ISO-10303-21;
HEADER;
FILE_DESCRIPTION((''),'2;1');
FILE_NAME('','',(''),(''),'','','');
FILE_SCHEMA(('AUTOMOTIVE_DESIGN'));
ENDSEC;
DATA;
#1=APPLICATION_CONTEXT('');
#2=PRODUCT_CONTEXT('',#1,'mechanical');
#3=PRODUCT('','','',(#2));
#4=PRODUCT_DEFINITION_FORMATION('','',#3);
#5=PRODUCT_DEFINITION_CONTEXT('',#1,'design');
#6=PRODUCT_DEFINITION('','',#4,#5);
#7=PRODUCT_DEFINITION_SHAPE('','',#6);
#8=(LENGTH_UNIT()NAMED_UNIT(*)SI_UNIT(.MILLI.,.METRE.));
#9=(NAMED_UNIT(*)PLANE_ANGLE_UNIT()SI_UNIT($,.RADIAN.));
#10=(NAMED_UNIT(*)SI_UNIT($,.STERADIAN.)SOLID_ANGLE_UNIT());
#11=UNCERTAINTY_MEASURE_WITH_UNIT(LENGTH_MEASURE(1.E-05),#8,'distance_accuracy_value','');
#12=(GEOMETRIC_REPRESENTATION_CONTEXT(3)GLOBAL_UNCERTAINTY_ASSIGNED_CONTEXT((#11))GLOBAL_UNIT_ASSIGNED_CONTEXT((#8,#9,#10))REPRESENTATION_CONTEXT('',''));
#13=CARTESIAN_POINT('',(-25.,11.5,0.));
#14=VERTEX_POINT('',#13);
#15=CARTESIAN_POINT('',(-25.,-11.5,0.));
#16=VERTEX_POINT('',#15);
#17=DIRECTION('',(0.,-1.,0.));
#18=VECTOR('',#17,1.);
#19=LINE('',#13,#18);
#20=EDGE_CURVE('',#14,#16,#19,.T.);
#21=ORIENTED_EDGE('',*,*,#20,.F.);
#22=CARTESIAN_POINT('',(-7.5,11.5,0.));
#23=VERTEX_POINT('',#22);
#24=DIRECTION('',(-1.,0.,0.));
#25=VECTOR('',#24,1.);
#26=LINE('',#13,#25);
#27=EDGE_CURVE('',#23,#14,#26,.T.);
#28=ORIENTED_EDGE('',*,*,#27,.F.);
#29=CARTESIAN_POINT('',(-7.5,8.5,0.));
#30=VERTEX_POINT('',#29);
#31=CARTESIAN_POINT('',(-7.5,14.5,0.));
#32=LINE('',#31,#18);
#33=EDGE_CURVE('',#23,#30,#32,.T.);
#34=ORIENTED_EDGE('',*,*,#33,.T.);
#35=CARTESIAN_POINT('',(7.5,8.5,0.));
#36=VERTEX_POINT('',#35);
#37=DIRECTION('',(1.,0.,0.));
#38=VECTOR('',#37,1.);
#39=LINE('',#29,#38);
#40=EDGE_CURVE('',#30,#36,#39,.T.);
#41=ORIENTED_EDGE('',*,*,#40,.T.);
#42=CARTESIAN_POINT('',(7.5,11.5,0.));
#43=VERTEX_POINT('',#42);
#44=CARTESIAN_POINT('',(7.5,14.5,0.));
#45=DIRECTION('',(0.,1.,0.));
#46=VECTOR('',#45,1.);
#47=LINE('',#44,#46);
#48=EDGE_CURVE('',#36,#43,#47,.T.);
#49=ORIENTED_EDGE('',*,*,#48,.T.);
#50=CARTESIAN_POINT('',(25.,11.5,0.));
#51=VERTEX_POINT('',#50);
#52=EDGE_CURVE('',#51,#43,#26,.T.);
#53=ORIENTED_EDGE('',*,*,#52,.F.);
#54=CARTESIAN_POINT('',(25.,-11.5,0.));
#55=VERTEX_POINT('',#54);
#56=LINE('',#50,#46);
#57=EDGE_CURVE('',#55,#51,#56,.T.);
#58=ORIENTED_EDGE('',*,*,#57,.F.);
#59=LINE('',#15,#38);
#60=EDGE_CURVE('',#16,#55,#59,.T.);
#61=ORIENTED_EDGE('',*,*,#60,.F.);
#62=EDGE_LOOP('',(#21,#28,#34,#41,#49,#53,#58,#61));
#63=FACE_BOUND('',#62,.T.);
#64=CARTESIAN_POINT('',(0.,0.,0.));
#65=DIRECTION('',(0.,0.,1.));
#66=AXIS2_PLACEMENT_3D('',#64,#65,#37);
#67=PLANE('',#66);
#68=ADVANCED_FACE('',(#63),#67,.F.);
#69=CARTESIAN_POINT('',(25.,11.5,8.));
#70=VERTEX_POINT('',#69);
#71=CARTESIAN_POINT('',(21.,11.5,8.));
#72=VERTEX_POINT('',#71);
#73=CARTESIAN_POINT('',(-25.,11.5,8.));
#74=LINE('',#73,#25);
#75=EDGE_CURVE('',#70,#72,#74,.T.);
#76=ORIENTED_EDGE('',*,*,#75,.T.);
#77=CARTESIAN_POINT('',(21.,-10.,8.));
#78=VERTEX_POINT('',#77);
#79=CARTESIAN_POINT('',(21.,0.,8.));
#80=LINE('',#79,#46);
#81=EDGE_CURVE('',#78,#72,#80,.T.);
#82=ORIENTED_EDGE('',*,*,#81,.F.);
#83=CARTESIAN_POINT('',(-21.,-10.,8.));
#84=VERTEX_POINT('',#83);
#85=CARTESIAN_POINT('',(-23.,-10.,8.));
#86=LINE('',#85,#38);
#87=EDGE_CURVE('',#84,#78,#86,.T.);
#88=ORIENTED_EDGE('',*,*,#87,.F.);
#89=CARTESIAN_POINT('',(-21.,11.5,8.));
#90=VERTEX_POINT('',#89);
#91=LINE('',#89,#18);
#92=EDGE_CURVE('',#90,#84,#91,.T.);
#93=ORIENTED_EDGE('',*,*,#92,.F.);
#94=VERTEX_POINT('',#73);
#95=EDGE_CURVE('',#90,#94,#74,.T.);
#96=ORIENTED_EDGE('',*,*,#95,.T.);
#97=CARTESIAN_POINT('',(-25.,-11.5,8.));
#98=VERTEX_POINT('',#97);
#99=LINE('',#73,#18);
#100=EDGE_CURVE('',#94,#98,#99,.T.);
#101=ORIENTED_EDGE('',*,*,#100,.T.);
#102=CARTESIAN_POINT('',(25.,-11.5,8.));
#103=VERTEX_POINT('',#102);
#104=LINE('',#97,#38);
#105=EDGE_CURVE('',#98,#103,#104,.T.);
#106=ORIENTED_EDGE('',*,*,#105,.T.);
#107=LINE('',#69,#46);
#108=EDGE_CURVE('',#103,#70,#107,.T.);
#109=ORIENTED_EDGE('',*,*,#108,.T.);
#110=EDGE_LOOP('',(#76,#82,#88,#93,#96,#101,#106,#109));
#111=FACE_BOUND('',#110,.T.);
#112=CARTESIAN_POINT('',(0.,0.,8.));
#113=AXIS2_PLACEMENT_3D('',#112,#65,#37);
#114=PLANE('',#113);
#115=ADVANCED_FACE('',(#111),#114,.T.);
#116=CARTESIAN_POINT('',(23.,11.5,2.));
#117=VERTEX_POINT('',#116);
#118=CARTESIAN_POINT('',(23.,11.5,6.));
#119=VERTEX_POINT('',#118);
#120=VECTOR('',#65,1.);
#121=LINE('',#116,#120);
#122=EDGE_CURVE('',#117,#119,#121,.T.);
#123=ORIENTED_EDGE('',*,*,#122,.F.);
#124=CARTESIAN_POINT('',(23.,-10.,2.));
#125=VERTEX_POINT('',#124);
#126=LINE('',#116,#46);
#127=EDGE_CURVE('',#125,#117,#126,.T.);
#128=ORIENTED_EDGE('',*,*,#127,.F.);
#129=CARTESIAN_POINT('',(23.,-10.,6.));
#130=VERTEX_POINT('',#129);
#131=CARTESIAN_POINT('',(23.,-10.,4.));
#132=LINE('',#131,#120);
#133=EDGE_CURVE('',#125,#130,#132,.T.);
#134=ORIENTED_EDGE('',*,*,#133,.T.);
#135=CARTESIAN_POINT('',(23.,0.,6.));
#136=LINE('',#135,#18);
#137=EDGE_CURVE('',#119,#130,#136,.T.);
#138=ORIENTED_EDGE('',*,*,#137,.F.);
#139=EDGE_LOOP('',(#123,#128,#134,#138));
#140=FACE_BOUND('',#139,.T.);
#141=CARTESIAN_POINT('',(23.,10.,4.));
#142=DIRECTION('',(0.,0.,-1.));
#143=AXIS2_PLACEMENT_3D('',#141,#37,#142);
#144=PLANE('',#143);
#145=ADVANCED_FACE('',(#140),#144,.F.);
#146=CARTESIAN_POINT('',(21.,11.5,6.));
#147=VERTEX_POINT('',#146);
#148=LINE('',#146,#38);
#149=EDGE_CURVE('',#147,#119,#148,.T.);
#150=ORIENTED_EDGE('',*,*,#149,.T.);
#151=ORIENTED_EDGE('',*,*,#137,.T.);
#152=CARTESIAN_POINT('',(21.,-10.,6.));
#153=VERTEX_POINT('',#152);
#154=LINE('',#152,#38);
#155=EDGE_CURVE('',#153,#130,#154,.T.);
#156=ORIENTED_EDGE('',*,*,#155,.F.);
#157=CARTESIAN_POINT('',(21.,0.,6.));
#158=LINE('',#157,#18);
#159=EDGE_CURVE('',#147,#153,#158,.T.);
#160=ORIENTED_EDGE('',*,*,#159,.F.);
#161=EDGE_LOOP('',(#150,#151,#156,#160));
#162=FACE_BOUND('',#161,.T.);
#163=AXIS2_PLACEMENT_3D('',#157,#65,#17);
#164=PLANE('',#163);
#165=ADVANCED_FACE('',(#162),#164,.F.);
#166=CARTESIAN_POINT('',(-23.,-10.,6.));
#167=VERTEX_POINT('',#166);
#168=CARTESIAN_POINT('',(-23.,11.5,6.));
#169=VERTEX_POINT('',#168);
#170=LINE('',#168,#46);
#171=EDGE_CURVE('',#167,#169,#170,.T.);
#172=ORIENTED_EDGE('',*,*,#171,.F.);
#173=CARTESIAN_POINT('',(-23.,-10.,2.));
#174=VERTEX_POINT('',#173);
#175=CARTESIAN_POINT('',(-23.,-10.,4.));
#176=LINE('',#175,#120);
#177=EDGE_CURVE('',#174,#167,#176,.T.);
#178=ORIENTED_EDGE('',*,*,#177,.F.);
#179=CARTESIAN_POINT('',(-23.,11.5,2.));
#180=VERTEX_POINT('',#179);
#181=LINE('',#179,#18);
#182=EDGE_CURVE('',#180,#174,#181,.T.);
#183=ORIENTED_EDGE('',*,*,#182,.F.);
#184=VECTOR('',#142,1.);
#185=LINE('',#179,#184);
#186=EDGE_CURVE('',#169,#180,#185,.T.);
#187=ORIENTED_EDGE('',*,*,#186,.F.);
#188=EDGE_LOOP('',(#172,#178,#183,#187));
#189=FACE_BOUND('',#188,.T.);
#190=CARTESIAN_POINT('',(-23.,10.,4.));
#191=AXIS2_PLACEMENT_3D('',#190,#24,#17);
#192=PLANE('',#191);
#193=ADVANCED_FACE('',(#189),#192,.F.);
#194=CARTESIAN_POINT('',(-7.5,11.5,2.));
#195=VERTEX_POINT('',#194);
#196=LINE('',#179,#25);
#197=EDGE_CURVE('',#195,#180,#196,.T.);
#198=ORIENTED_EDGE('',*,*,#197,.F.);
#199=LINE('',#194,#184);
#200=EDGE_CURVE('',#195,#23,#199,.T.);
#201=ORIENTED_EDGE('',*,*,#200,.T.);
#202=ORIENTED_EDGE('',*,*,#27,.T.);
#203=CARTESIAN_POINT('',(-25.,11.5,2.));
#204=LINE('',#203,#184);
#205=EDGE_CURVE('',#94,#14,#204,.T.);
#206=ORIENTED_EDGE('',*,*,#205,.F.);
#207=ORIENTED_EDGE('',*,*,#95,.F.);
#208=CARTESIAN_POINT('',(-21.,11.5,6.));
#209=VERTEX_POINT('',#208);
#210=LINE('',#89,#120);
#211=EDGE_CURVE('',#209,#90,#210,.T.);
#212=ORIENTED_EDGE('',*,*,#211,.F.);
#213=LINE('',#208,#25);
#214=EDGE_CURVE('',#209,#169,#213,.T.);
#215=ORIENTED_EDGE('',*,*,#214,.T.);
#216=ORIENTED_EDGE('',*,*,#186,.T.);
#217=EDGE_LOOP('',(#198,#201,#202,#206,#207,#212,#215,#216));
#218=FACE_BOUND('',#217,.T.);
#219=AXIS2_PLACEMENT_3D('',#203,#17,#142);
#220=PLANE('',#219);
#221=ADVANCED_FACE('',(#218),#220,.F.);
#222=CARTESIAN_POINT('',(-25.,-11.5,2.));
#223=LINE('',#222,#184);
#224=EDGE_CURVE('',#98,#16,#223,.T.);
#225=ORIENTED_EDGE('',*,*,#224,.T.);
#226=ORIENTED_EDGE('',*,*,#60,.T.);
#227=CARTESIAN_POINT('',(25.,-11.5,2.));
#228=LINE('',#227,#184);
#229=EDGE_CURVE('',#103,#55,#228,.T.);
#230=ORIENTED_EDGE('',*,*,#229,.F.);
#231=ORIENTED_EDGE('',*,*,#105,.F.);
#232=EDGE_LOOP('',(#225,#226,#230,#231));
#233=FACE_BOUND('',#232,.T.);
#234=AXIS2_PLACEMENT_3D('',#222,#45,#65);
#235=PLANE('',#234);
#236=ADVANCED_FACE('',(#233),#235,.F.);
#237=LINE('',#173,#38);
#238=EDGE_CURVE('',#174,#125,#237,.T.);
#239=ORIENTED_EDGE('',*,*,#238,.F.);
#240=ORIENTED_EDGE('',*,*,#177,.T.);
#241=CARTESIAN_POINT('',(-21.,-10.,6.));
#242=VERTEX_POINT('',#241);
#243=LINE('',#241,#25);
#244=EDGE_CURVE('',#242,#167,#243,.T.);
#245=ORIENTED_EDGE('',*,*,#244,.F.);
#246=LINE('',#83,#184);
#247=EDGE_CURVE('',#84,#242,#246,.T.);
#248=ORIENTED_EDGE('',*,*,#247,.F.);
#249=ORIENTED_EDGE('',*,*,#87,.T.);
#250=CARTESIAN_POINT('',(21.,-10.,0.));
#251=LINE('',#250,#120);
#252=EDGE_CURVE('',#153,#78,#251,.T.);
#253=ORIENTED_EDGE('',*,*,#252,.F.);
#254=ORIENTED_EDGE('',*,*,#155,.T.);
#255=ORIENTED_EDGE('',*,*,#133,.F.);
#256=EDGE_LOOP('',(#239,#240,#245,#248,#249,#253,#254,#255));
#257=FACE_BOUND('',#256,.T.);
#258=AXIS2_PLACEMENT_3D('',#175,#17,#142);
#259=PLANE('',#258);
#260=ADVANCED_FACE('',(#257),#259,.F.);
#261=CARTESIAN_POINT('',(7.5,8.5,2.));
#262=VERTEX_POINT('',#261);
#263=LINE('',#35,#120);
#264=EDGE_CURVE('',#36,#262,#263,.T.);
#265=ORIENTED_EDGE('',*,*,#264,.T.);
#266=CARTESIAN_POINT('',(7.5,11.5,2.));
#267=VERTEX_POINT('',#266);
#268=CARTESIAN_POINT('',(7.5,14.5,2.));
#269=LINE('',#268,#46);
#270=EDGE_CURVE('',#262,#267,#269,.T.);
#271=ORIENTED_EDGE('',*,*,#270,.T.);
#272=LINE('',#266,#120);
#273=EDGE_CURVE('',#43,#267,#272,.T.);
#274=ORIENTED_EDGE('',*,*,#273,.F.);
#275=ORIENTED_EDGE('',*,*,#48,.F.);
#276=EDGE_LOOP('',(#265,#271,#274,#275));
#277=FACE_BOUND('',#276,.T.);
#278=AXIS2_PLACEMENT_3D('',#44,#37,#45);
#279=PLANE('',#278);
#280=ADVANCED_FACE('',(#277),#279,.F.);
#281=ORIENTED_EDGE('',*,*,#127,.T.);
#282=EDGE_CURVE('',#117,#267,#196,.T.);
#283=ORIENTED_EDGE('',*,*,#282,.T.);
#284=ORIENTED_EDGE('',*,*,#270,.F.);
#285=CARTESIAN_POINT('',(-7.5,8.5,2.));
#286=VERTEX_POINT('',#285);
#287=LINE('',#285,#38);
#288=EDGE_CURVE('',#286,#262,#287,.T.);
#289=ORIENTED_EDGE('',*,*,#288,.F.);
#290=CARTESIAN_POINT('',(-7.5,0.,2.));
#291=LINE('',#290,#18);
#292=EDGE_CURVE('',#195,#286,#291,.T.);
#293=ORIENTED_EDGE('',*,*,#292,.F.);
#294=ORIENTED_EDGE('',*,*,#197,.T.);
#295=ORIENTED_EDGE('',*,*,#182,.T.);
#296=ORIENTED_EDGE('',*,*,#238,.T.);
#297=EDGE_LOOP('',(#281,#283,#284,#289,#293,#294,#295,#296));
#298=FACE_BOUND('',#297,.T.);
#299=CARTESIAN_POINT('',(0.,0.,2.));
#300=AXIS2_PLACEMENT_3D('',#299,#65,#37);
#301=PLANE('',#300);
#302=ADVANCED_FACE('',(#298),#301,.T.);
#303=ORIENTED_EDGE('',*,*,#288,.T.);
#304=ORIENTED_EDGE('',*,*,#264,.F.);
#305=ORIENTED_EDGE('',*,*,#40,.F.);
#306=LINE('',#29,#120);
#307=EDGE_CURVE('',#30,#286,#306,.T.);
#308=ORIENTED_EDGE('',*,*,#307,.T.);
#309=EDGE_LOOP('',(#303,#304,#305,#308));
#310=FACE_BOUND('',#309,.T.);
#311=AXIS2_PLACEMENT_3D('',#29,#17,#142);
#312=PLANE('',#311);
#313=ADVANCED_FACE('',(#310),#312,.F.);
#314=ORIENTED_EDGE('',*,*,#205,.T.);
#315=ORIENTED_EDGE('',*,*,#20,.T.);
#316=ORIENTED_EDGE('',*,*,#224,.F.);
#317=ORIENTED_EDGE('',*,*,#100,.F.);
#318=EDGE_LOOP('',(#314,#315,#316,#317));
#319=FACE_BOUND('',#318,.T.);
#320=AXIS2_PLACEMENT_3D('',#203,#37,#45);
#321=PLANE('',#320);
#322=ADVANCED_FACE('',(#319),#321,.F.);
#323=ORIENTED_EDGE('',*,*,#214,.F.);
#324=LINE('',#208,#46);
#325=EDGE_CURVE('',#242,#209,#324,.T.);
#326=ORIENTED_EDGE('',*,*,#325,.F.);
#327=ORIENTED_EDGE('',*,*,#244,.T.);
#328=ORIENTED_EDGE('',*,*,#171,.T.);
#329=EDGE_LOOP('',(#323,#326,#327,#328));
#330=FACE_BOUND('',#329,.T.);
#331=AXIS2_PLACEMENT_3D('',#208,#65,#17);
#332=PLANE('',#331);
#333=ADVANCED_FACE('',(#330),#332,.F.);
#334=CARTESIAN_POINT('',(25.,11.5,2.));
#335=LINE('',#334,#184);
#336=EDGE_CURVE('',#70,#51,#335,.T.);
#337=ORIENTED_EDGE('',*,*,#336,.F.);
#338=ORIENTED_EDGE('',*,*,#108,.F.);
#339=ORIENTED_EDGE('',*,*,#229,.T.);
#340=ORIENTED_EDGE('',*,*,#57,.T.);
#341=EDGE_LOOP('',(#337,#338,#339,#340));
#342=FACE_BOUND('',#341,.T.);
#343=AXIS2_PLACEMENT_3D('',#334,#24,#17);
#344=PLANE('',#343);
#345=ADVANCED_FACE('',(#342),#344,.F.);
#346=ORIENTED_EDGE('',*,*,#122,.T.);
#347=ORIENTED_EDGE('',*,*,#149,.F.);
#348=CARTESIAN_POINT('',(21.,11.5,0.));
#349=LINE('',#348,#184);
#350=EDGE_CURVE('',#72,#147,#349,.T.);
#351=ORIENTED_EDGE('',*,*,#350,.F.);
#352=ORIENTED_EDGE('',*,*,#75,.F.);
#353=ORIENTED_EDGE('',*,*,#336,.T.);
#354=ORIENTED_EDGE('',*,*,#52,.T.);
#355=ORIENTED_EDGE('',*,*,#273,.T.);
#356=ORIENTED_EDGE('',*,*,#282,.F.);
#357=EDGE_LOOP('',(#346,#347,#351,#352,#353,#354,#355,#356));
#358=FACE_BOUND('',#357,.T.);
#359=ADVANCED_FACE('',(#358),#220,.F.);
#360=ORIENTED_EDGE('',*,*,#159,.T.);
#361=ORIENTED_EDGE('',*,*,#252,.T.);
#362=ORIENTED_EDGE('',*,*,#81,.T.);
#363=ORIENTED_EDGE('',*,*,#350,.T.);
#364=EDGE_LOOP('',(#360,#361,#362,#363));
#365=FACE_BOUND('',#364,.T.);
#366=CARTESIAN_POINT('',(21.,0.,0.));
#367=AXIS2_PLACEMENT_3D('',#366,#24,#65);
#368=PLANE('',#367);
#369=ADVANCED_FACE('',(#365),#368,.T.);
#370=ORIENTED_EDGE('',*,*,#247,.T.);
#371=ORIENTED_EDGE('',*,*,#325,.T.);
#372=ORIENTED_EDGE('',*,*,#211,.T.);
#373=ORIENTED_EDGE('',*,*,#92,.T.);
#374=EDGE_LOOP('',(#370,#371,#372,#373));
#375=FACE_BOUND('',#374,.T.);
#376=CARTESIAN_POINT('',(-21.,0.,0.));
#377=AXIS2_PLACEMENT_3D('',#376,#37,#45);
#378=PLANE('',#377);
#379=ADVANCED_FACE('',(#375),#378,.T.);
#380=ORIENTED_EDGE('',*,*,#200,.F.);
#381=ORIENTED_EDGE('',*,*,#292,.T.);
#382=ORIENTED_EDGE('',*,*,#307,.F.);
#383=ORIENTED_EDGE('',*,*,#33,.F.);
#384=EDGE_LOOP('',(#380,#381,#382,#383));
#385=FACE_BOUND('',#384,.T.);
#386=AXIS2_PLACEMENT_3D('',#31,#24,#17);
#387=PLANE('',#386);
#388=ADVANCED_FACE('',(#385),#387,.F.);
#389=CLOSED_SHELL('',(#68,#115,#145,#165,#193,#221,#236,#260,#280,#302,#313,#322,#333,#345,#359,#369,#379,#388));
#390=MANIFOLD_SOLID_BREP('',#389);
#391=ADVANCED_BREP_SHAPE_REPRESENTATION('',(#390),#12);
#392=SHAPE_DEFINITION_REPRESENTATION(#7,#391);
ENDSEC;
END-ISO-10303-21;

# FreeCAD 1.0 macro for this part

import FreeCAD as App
import Part
import Sketcher


def add_polygon(sketch, points):
    """Adds a closed chain of lines whose ends are joined by coincident constraints."""
    first, n = sketch.GeometryCount, len(points)
    for a, b in zip(points, points[1:] + points[:1]):
        sketch.addGeometry(Part.LineSegment(App.Vector(*a, 0), App.Vector(*b, 0)), False)
    for i in range(n):
        sketch.addConstraint(Sketcher.Constraint("Coincident", first + i, 2, first + (i + 1) % n, 1))

doc = App.newDocument("Part")
body = doc.addObject("PartDesign::Body", "Body")

sketch1 = body.newObject("Sketcher::SketchObject", "Sketch")
sketch1.AttachmentSupport = (doc.getObject("XY_Plane"), [""])
sketch1.MapMode = "FlatFace"
add_polygon(sketch1, [(-25, 11.5), (-25, -11.5), (25, -11.5), (25, 11.5)])
sketch1.addConstraint(Sketcher.Constraint("Vertical", 0))
sketch1.addConstraint(Sketcher.Constraint("Horizontal", 1))
sketch1.addConstraint(Sketcher.Constraint("Vertical", 2))
sketch1.addConstraint(Sketcher.Constraint("Horizontal", 3))
sketch1.addConstraint(Sketcher.Constraint("Symmetric", 0, 2, 2, 2, -1, 1))
sketch1.addConstraint(Sketcher.Constraint("DistanceX", 1, 1, 1, 2, 50.0))
sketch1.addConstraint(Sketcher.Constraint("DistanceY", 0, 2, 0, 1, 23.0))
pad1 = body.newObject("PartDesign::Pad", "Pad")
pad1.Profile = sketch1
pad1.Length = 2

sketch2 = body.newObject("Sketcher::SketchObject", "Sketch001")
sketch2.AttachmentSupport = (doc.getObject("XY_Plane"), [""])
sketch2.MapMode = "FlatFace"
sketch2.AttachmentOffset = App.Placement(App.Vector(0, 0, 2), App.Rotation())
add_polygon(sketch2, [(-25, 11.5), (-25, -11.5), (25, -11.5), (25, 11.5)])
sketch2.addConstraint(Sketcher.Constraint("Vertical", 0))
sketch2.addConstraint(Sketcher.Constraint("Horizontal", 1))
sketch2.addConstraint(Sketcher.Constraint("Vertical", 2))
sketch2.addConstraint(Sketcher.Constraint("Horizontal", 3))
sketch2.addConstraint(Sketcher.Constraint("Symmetric", 0, 2, 2, 2, -1, 1))
sketch2.addConstraint(Sketcher.Constraint("DistanceX", 1, 1, 1, 2, 50.0))
sketch2.addConstraint(Sketcher.Constraint("DistanceY", 0, 2, 0, 1, 23.0))
pad2 = body.newObject("PartDesign::Pad", "Pad001")
pad2.Profile = sketch2
pad2.Length = 6

sketch3 = body.newObject("Sketcher::SketchObject", "Sketch002")
sketch3.AttachmentSupport = (doc.getObject("XY_Plane"), [""])
sketch3.MapMode = "FlatFace"
sketch3.AttachmentOffset = App.Placement(App.Vector(0, 0, 8), App.Rotation())
add_polygon(sketch3, [(-23, 10), (-23, -10), (23, -10), (23, 10)])
sketch3.addConstraint(Sketcher.Constraint("Vertical", 0))
sketch3.addConstraint(Sketcher.Constraint("Horizontal", 1))
sketch3.addConstraint(Sketcher.Constraint("Vertical", 2))
sketch3.addConstraint(Sketcher.Constraint("Horizontal", 3))
sketch3.addConstraint(Sketcher.Constraint("Symmetric", 0, 2, 2, 2, -1, 1))
sketch3.addConstraint(Sketcher.Constraint("DistanceX", 1, 1, 1, 2, 46.0))
sketch3.addConstraint(Sketcher.Constraint("DistanceY", 0, 2, 0, 1, 20.0))
pocket1 = body.newObject("PartDesign::Pocket", "Pocket")
pocket1.Profile = sketch3
pocket1.Length = 4

sketch4 = body.newObject("Sketcher::SketchObject", "Sketch003")
sketch4.AttachmentSupport = (doc.getObject("XZ_Plane"), [""])
sketch4.MapMode = "FlatFace"
sketch4.AttachmentOffset = App.Placement(App.Vector(0, 0, -10), App.Rotation())
add_polygon(sketch4, [(-23, 8), (-23, 4), (23, 4), (23, 8)])
sketch4.addConstraint(Sketcher.Constraint("Vertical", 0))
sketch4.addConstraint(Sketcher.Constraint("Horizontal", 1))
sketch4.addConstraint(Sketcher.Constraint("Vertical", 2))
sketch4.addConstraint(Sketcher.Constraint("Horizontal", 3))
sketch4.addConstraint(Sketcher.Constraint("DistanceX", 1, 1, 1, 2, 46.0))
sketch4.addConstraint(Sketcher.Constraint("DistanceY", 0, 2, 0, 1, 4.0))
sketch4.addConstraint(Sketcher.Constraint("DistanceX", 0, 2, -1, 1, 23.0))
sketch4.addConstraint(Sketcher.Constraint("DistanceY", -1, 1, 0, 2, 4.0))
pocket2 = body.newObject("PartDesign::Pocket", "Pocket001")
pocket2.Profile = sketch4
pocket2.Length = 4

sketch5 = body.newObject("Sketcher::SketchObject", "Sketch004")
sketch5.AttachmentSupport = (doc.getObject("XY_Plane"), [""])
sketch5.MapMode = "FlatFace"
sketch5.AttachmentOffset = App.Placement(App.Vector(0, 0, 4), App.Rotation())
add_polygon(sketch5, [(-23, 11.5), (-23, -10), (23, -10), (23, 11.5)])
sketch5.addConstraint(Sketcher.Constraint("Vertical", 0))
sketch5.addConstraint(Sketcher.Constraint("Horizontal", 1))
sketch5.addConstraint(Sketcher.Constraint("Vertical", 2))
sketch5.addConstraint(Sketcher.Constraint("Horizontal", 3))
sketch5.addConstraint(Sketcher.Constraint("DistanceX", 1, 1, 1, 2, 46.0))
sketch5.addConstraint(Sketcher.Constraint("DistanceY", 0, 2, 0, 1, 21.5))
sketch5.addConstraint(Sketcher.Constraint("DistanceX", 0, 2, -1, 1, 23.0))
sketch5.addConstraint(Sketcher.Constraint("DistanceY", 0, 2, -1, 1, 10.0))
pocket3 = body.newObject("PartDesign::Pocket", "Pocket002")
pocket3.Profile = sketch5
pocket3.Length = 2

sketch6 = body.newObject("Sketcher::SketchObject", "Sketch005")
sketch6.AttachmentSupport = (doc.getObject("YZ_Plane"), [""])
sketch6.MapMode = "FlatFace"
sketch6.AttachmentOffset = App.Placement(App.Vector(0, 0, 23), App.Rotation())
add_polygon(sketch6, [(11.5, 6), (-10, 6), (-10, 8), (11.5, 8)])
sketch6.addConstraint(Sketcher.Constraint("Horizontal", 0))
sketch6.addConstraint(Sketcher.Constraint("Vertical", 1))
sketch6.addConstraint(Sketcher.Constraint("Horizontal", 2))
sketch6.addConstraint(Sketcher.Constraint("Vertical", 3))
sketch6.addConstraint(Sketcher.Constraint("DistanceY", 1, 1, 1, 2, 2.0))
sketch6.addConstraint(Sketcher.Constraint("DistanceX", 0, 2, 0, 1, 21.5))
sketch6.addConstraint(Sketcher.Constraint("DistanceX", 0, 2, -1, 1, 10.0))
sketch6.addConstraint(Sketcher.Constraint("DistanceY", -1, 1, 0, 2, 6.0))
pad3 = body.newObject("PartDesign::Pad", "Pad002")
pad3.Profile = sketch6
pad3.Length = 2
pad3.Reversed = True

sketch7 = body.newObject("Sketcher::SketchObject", "Sketch006")
sketch7.AttachmentSupport = (doc.getObject("YZ_Plane"), [""])
sketch7.MapMode = "FlatFace"
sketch7.AttachmentOffset = App.Placement(App.Vector(0, 0, -23), App.Rotation())
add_polygon(sketch7, [(11.5, 8), (-10, 8), (-10, 6), (11.5, 6)])
sketch7.addConstraint(Sketcher.Constraint("Horizontal", 0))
sketch7.addConstraint(Sketcher.Constraint("Vertical", 1))
sketch7.addConstraint(Sketcher.Constraint("Horizontal", 2))
sketch7.addConstraint(Sketcher.Constraint("Vertical", 3))
sketch7.addConstraint(Sketcher.Constraint("DistanceY", 1, 2, 1, 1, 2.0))
sketch7.addConstraint(Sketcher.Constraint("DistanceX", 0, 2, 0, 1, 21.5))
sketch7.addConstraint(Sketcher.Constraint("DistanceX", 0, 2, -1, 1, 10.0))
sketch7.addConstraint(Sketcher.Constraint("DistanceY", -1, 1, 0, 2, 8.0))
pad4 = body.newObject("PartDesign::Pad", "Pad003")
pad4.Profile = sketch7
pad4.Length = 2

sketch8 = body.newObject("Sketcher::SketchObject", "Sketch007")
sketch8.AttachmentSupport = (doc.getObject("XY_Plane"), [""])
sketch8.MapMode = "FlatFace"
sketch8.AttachmentOffset = App.Placement(App.Vector(0, 0, 2), App.Rotation())
add_polygon(sketch8, [(-7.5, 14.5), (-7.5, 8.5), (7.5, 8.5), (7.5, 14.5)])
sketch8.addConstraint(Sketcher.Constraint("Vertical", 0))
sketch8.addConstraint(Sketcher.Constraint("Horizontal", 1))
sketch8.addConstraint(Sketcher.Constraint("Vertical", 2))
sketch8.addConstraint(Sketcher.Constraint("Horizontal", 3))
sketch8.addConstraint(Sketcher.Constraint("DistanceX", 1, 1, 1, 2, 15.0))
sketch8.addConstraint(Sketcher.Constraint("DistanceY", 0, 2, 0, 1, 6.0))
sketch8.addConstraint(Sketcher.Constraint("DistanceX", 0, 2, -1, 1, 7.5))
sketch8.addConstraint(Sketcher.Constraint("DistanceY", -1, 1, 0, 2, 8.5))
pocket4 = body.newObject("PartDesign::Pocket", "Pocket003")
pocket4.Profile = sketch8
pocket4.Length = 2

doc.recompute()
